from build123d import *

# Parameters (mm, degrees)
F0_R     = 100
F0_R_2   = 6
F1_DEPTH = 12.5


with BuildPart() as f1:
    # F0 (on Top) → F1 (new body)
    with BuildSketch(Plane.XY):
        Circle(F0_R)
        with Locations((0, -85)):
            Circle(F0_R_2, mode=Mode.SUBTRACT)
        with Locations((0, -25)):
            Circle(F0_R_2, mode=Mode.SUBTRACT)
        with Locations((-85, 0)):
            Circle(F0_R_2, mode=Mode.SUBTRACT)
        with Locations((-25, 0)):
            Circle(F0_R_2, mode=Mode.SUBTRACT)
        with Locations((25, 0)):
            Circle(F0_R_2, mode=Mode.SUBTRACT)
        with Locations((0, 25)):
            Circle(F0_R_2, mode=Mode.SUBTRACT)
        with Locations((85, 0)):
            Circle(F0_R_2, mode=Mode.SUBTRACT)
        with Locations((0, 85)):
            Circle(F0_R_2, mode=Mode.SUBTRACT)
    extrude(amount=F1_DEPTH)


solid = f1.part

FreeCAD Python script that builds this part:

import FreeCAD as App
import Part
import Sketcher
Q = App.Units.Quantity

doc = App.newDocument("Part")
body = doc.addObject("PartDesign::Body", "Body")

sketch1 = body.newObject("Sketcher::SketchObject", "Sketch")
sketch1.AttachmentSupport = (doc.getObject("XY_Plane"), [""])
sketch1.MapMode = "FlatFace"
sketch1.addGeometry([
    Part.Circle(App.Vector(0, 0, 0), App.Vector(0, 0, 1), 100),
    Part.Circle(App.Vector(0, -85, 0), App.Vector(0, 0, 1), 6),
    Part.Circle(App.Vector(0, -25, 0), App.Vector(0, 0, 1), 6),
    Part.Circle(App.Vector(-85, 0, 0), App.Vector(0, 0, 1), 6),
    Part.Circle(App.Vector(-25, 0, 0), App.Vector(0, 0, 1), 6),
    Part.Circle(App.Vector(25, 0, 0), App.Vector(0, 0, 1), 6),
    Part.Circle(App.Vector(0, 25, 0), App.Vector(0, 0, 1), 6),
    Part.Circle(App.Vector(85, 0, 0), App.Vector(0, 0, 1), 6),
    Part.Circle(App.Vector(0, 85, 0), App.Vector(0, 0, 1), 6),
], False)
sketch1.addConstraint([
    Sketcher.Constraint("Coincident", 0, 3, -1, 1),
    Sketcher.Constraint("Equal", 1, 2),
    Sketcher.Constraint("Equal", 2, 3),
    Sketcher.Constraint("Equal", 3, 4),
    Sketcher.Constraint("Equal", 4, 5),
    Sketcher.Constraint("Equal", 5, 6),
    Sketcher.Constraint("Equal", 6, 7),
    Sketcher.Constraint("Equal", 7, 8),
    Sketcher.Constraint("Symmetric", 4, 3, 5, 3, -1, 1),
    Sketcher.Constraint("Symmetric", 2, 3, 6, 3, -1, 1),
    Sketcher.Constraint("Symmetric", 3, 3, 7, 3, -1, 1),
    Sketcher.Constraint("Symmetric", 1, 3, 8, 3, -1, 1),
    Sketcher.Constraint("PointOnObject", 1, 3, -2),
    Sketcher.Constraint("PointOnObject", 2, 3, -2),
    Sketcher.Constraint("PointOnObject", 3, 3, -1),
    Sketcher.Constraint("PointOnObject", 4, 3, -1),
    Sketcher.Constraint("Diameter", 0, Q("200 mm")),
    Sketcher.Constraint("Diameter", 1, Q("12 mm")),
    Sketcher.Constraint("DistanceY", 1, 3, -1, 1, Q("85 mm")),
    Sketcher.Constraint("DistanceY", 2, 3, -1, 1, Q("25 mm")),
    Sketcher.Constraint("DistanceX", 3, 3, -1, 1, Q("85 mm")),
    Sketcher.Constraint("DistanceX", 4, 3, -1, 1, Q("25 mm")),
])
pad1 = body.newObject("PartDesign::Pad", "Pad")
pad1.Profile = sketch1
pad1.Length = 12.5

doc.recompute()
